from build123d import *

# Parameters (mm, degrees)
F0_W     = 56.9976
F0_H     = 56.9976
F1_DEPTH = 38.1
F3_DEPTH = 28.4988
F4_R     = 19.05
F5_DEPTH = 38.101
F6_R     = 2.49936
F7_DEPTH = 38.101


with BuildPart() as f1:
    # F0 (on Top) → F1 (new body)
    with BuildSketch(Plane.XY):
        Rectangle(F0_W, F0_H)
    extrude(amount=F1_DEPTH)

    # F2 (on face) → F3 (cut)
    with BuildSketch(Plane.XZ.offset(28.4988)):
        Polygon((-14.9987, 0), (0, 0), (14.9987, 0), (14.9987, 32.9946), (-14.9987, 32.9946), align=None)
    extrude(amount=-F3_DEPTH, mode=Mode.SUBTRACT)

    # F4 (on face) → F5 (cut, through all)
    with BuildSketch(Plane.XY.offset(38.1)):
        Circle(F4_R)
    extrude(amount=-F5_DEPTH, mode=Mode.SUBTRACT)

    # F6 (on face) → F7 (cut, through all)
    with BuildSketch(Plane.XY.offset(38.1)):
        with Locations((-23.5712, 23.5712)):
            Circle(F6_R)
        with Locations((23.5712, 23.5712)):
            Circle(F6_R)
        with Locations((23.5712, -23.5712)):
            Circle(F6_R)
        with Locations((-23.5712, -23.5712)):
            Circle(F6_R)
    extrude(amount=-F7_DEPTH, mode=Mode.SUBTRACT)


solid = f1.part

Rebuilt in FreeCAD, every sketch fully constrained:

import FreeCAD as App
import Part
import Sketcher
from FreeCAD import Vector
Q = App.Units.Quantity

doc = App.newDocument("Part")
body = doc.addObject("PartDesign::Body", "Body")

sketch1 = body.newObject("Sketcher::SketchObject", "Sketch")
sketch1.AttachmentSupport = (doc.getObject("XY_Plane"), [""])
sketch1.MapMode = "FlatFace"
sketch1.addGeometry([
    Part.LineSegment(Vector(-28.4988, 28.4988, 0), Vector(-28.4988, -28.4988, 0)),
    Part.LineSegment(Vector(-28.4988, -28.4988, 0), Vector(28.4988, -28.4988, 0)),
    Part.LineSegment(Vector(28.4988, -28.4988, 0), Vector(28.4988, 28.4988, 0)),
    Part.LineSegment(Vector(28.4988, 28.4988, 0), Vector(-28.4988, 28.4988, 0)),
], False)
sketch1.addConstraint([
    Sketcher.Constraint("Coincident", 0, 2, 1, 1),
    Sketcher.Constraint("Coincident", 1, 2, 2, 1),
    Sketcher.Constraint("Coincident", 2, 2, 3, 1),
    Sketcher.Constraint("Coincident", 3, 2, 0, 1),
    Sketcher.Constraint("Vertical", 0),
    Sketcher.Constraint("Horizontal", 1),
    Sketcher.Constraint("Vertical", 2),
    Sketcher.Constraint("Horizontal", 3),
    Sketcher.Constraint("Symmetric", 0, 2, 2, 2, -1, 1),
    Sketcher.Constraint("Equal", 3, 0),
    Sketcher.Constraint("DistanceX", 1, 1, 1, 2, Q("2.244 in")),
])
pad1 = body.newObject("PartDesign::Pad", "Pad")
pad1.Profile = sketch1
pad1.Length = Q("1.5 in")

sketch2 = body.newObject("Sketcher::SketchObject", "Sketch001")
sketch2.AttachmentSupport = (doc.getObject("XZ_Plane"), [""])
sketch2.MapMode = "FlatFace"
sketch2.AttachmentOffset = App.Placement(Vector(0, 0, 1.122 * 25.4), App.Rotation())
sketch2.addGeometry([
    Part.LineSegment(Vector(-14.9987, 0, 0), Vector(14.9987, 0, 0)),
    Part.LineSegment(Vector(14.9987, 0, 0), Vector(14.9987, 32.9946, 0)),
    Part.LineSegment(Vector(14.9987, 32.9946, 0), Vector(-14.9987, 32.9946, 0)),
    Part.LineSegment(Vector(-14.9987, 32.9946, 0), Vector(-14.9987, 0, 0)),
], False)
sketch2.addConstraint([
    Sketcher.Constraint("Coincident", 0, 2, 1, 1),
    Sketcher.Constraint("Coincident", 1, 2, 2, 1),
    Sketcher.Constraint("Coincident", 2, 2, 3, 1),
    Sketcher.Constraint("Coincident", 3, 2, 0, 1),
    Sketcher.Constraint("Horizontal", 0),
    Sketcher.Constraint("Vertical", 1),
    Sketcher.Constraint("Horizontal", 2),
    Sketcher.Constraint("Vertical", 3),
    Sketcher.Constraint("Symmetric", 0, 2, 3, 2, -1, 1),
    Sketcher.Constraint("DistanceX", 0, 1, 0, 2, Q("1.181 in")),
    Sketcher.Constraint("DistanceY", 1, 1, 1, 2, Q("1.299 in")),
])
pocket1 = body.newObject("PartDesign::Pocket", "Pocket")
pocket1.Profile = sketch2
pocket1.Length = Q("1.122 in")

sketch3 = body.newObject("Sketcher::SketchObject", "Sketch002")
sketch3.AttachmentSupport = (doc.getObject("XY_Plane"), [""])
sketch3.MapMode = "FlatFace"
sketch3.AttachmentOffset = App.Placement(Vector(0, 0, 1.5 * 25.4), App.Rotation())
sketch3.addGeometry(Part.Circle(Vector(0, 0, 0), Vector(0, 0, 1), 19.05), False)
sketch3.addConstraint([
    Sketcher.Constraint("Coincident", 0, 3, -1, 1),
    Sketcher.Constraint("Diameter", 0, Q("1.5 in")),
])
pocket2 = body.newObject("PartDesign::Pocket", "Pocket001")
pocket2.Profile = sketch3
pocket2.Type = "ThroughAll"

sketch4 = body.newObject("Sketcher::SketchObject", "Sketch003")
sketch4.AttachmentSupport = (doc.getObject("XY_Plane"), [""])
sketch4.MapMode = "FlatFace"
sketch4.AttachmentOffset = App.Placement(Vector(0, 0, 1.5 * 25.4), App.Rotation())
sketch4.addGeometry([
    Part.Circle(Vector(-23.5712, 23.5712, 0), Vector(0, 0, 1), 2.49936),
    Part.Circle(Vector(23.5712, 23.5712, 0), Vector(0, 0, 1), 2.49936),
    Part.Circle(Vector(23.5712, -23.5712, 0), Vector(0, 0, 1), 2.49936),
    Part.Circle(Vector(-23.5712, -23.5712, 0), Vector(0, 0, 1), 2.49936),
], False)
sketch4.addConstraint([
    Sketcher.Constraint("Equal", 0, 1),
    Sketcher.Constraint("Equal", 1, 2),
    Sketcher.Constraint("Equal", 2, 3),
    Sketcher.Constraint("Symmetric", 0, 3, 2, 3, -1, 1),
    Sketcher.Constraint("Symmetric", 1, 3, 3, 3, -1, 1),
    Sketcher.Constraint("Symmetric", 0, 3, 1, 3, -2),
    Sketcher.Constraint("Diameter", 0, Q("0.1968 in")),
    Sketcher.Constraint("DistanceX", 0, 3, -1, 1, Q("0.928 in")),
    Sketcher.Constraint("DistanceY", -1, 1, 0, 3, Q("0.928 in")),
])
pocket3 = body.newObject("PartDesign::Pocket", "Pocket002")
pocket3.Profile = sketch4
pocket3.Type = "ThroughAll"

doc.recompute()
